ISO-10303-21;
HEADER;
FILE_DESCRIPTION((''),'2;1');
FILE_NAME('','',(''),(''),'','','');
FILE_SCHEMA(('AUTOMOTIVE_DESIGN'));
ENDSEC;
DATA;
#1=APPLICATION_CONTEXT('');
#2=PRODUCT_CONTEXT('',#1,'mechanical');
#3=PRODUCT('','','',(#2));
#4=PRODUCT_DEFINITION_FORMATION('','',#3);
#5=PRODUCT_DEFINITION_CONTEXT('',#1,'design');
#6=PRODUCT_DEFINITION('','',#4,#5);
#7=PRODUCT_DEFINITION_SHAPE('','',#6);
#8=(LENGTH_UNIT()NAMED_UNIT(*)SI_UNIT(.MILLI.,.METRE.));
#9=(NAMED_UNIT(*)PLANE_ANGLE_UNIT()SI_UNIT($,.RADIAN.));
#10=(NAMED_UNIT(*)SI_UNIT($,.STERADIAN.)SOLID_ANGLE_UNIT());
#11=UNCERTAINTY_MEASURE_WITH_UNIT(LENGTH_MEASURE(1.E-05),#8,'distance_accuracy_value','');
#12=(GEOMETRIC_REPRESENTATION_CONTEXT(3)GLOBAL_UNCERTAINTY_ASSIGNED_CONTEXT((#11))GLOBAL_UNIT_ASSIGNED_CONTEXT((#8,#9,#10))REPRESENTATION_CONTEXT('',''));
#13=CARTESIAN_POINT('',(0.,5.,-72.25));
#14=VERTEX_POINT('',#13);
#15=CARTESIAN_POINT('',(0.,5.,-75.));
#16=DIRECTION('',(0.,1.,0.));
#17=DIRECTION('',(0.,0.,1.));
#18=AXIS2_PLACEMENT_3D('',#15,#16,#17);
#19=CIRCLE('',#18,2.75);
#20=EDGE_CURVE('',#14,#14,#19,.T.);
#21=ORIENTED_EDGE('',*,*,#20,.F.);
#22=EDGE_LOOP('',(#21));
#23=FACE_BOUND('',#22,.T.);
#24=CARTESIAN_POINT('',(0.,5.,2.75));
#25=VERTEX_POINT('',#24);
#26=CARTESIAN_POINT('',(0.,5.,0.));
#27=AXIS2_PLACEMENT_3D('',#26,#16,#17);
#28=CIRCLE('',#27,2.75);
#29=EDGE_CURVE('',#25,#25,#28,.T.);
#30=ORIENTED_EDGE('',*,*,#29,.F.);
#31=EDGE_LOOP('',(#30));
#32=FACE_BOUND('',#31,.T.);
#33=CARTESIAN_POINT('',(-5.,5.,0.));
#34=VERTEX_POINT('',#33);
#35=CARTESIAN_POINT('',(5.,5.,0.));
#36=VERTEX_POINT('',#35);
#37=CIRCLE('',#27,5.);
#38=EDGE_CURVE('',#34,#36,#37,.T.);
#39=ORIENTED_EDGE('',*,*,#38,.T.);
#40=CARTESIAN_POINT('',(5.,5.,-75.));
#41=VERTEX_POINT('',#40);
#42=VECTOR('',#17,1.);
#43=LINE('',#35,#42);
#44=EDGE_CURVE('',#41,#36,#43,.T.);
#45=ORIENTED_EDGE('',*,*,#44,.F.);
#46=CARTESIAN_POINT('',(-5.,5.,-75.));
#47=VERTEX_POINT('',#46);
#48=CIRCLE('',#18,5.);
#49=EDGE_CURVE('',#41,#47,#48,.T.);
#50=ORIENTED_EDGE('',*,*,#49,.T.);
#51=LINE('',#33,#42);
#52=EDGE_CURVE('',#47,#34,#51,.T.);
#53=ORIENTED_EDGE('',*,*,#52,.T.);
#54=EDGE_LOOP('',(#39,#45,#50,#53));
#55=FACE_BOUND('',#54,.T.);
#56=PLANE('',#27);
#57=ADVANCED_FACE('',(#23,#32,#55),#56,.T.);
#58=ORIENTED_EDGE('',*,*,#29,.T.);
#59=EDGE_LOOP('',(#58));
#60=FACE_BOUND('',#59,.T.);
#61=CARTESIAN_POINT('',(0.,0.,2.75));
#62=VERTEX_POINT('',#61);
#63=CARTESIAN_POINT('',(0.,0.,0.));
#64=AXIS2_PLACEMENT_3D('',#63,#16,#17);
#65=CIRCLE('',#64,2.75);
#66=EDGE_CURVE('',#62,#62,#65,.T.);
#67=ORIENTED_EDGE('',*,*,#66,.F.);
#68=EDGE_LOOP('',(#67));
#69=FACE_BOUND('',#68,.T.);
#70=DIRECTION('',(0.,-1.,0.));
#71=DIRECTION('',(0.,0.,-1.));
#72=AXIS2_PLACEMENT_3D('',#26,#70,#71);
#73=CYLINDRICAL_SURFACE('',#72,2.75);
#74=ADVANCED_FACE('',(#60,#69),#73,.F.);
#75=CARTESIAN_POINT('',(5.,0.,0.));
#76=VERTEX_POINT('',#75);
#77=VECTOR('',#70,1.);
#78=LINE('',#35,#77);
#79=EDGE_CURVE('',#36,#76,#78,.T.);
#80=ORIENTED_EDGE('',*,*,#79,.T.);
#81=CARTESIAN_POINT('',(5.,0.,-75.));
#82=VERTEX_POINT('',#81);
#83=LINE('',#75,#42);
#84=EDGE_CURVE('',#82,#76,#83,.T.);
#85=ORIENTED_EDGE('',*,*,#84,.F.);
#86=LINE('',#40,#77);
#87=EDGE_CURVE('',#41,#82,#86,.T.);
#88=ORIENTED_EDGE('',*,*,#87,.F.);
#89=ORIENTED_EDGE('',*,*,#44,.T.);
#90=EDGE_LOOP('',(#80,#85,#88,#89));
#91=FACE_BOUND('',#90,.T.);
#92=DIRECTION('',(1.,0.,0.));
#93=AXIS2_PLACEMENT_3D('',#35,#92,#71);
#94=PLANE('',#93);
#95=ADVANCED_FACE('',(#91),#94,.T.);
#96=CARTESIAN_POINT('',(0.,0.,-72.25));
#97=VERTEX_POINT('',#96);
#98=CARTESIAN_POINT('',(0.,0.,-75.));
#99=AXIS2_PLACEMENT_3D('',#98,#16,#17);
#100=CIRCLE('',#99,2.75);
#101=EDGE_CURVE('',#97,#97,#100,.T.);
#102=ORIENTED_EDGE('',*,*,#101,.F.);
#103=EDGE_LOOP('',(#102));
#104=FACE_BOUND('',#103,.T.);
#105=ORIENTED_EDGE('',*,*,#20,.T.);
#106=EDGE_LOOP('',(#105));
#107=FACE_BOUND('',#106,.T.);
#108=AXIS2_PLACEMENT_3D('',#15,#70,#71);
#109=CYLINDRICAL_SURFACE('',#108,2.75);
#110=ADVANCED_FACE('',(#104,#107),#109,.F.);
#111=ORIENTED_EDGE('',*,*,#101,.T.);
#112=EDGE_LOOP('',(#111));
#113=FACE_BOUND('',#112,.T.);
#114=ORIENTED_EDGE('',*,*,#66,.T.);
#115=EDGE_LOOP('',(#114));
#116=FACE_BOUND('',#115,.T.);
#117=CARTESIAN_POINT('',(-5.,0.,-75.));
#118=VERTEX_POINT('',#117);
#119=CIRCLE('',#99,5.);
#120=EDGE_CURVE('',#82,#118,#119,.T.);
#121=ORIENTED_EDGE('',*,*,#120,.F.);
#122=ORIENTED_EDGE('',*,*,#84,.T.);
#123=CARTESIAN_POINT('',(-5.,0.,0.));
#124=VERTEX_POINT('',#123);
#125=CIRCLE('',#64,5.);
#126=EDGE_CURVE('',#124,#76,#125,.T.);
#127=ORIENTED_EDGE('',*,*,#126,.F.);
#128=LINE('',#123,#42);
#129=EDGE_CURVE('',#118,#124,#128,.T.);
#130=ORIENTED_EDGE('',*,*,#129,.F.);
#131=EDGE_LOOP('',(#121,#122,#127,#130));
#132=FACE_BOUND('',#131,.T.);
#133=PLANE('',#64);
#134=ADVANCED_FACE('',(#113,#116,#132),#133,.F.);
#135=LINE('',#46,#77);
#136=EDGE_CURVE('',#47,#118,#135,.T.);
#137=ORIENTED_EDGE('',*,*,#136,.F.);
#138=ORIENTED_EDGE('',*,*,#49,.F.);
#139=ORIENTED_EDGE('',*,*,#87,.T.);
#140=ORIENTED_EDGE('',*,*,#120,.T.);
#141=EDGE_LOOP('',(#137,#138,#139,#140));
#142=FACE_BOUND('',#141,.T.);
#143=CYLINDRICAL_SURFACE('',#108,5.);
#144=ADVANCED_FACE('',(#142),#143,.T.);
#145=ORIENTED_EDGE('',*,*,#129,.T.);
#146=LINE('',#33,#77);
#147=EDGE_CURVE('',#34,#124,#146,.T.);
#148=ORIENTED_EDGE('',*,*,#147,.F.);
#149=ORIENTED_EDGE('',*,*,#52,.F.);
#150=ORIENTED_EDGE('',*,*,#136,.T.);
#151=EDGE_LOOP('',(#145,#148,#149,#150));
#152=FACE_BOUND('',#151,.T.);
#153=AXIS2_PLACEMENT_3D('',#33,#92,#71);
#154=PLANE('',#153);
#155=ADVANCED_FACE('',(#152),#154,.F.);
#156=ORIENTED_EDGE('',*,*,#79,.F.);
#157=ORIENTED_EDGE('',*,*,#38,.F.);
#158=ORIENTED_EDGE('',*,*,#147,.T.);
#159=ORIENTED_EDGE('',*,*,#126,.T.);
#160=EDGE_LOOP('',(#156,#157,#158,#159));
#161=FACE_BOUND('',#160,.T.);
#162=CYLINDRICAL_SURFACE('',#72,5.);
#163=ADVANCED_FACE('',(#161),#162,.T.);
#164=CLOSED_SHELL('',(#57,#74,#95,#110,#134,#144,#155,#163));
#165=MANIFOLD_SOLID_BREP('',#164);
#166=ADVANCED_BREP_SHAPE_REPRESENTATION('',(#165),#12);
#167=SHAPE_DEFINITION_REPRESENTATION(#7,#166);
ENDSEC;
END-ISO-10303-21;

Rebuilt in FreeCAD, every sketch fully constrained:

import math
import FreeCAD as App
import Part
import Sketcher
from FreeCAD import Vector

doc = App.newDocument("Part")
body = doc.addObject("PartDesign::Body", "Body")

sketch1 = body.newObject("Sketcher::SketchObject", "Sketch")
sketch1.AttachmentSupport = (doc.getObject("XZ_Plane"), [""])
sketch1.MapMode = "FlatFace"
sketch1.addGeometry([
    Part.LineSegment(Vector(5, 0, 0), Vector(5, -75, 0)),
    Part.ArcOfCircle(Part.Circle(Vector(0, -75, 0), Vector(0, 0, 1), 5), math.radians(180), math.radians(360)),
    Part.LineSegment(Vector(-5, -75, 0), Vector(-5, 0, 0)),
    Part.ArcOfCircle(Part.Circle(Vector(0, 0, 0), Vector(0, 0, 1), 5), math.radians(0), math.radians(180)),
    Part.Circle(Vector(0, 0, 0), Vector(0, 0, 1), 2.8),
    Part.Circle(Vector(0, -75, 0), Vector(0, 0, 1), 2.8),
], False)
sketch1.addConstraint([
    Sketcher.Constraint("Tangent", 0, 2, 1, 2),
    Sketcher.Constraint("Tangent", 1, 1, 2, 1),
    Sketcher.Constraint("Tangent", 2, 2, 3, 2),
    Sketcher.Constraint("Tangent", 3, 1, 0, 1),
    Sketcher.Constraint("Vertical", 0),
    Sketcher.Constraint("Vertical", 2),
    Sketcher.Constraint("Coincident", 3, 3, -1, 1),
    Sketcher.Constraint("Coincident", 4, 3, -1, 1),
    Sketcher.Constraint("Coincident", 5, 3, 1, 3),
    Sketcher.Constraint("Equal", 4, 5),
    Sketcher.Constraint("Radius", 1, 5.0),
    Sketcher.Constraint("Diameter", 4, 5.5),
    Sketcher.Constraint("DistanceY", 0, 2, 0, 1, 75.0),
])
pad1 = body.newObject("PartDesign::Pad", "Pad")
pad1.Profile = sketch1
pad1.Length = 5
pad1.Reversed = True

doc.recompute()
